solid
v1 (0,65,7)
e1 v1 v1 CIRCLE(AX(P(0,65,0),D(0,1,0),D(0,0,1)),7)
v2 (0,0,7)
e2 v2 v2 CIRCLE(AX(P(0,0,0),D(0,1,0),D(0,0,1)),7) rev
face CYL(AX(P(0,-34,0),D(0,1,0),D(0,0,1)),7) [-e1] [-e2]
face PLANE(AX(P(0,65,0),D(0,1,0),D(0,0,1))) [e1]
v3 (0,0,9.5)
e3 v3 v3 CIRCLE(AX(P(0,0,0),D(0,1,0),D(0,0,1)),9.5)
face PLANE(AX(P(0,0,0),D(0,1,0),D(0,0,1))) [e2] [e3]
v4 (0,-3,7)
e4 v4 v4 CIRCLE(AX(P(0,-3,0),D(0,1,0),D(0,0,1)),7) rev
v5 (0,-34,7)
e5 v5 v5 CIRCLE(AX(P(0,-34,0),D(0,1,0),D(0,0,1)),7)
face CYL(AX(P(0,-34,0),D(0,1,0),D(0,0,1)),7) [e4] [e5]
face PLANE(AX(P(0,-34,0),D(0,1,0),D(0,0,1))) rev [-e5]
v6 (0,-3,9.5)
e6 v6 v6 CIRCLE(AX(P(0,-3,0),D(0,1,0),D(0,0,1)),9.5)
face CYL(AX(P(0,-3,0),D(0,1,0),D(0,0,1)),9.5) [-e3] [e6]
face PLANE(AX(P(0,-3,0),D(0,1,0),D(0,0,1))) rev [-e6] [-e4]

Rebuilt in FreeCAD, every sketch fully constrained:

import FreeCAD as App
import Part
import Sketcher

doc = App.newDocument("Part")
body = doc.addObject("PartDesign::Body", "Body")

# Sketch on XZ plane
sketch1 = body.newObject("Sketcher::SketchObject", "Sketch")
sketch1.AttachmentSupport = (doc.getObject("XZ_Plane"), [""])
sketch1.MapMode = "FlatFace"
sketch1.addGeometry(Part.Circle(App.Vector(0, 0, 0), App.Vector(0, 0, 1), 7), False)
sketch1.addConstraint([
    Sketcher.Constraint("Coincident", 0, 3, -1, 1),
    Sketcher.Constraint("Diameter", 0, 14.0),
])
pad1 = body.newObject("PartDesign::Pad", "Pad")
pad1.Profile = sketch1
pad1.Type = "TwoLengths"
pad1.Length = 65
pad1.Length2 = 34
pad1.Reversed = True

# Sketch on XZ plane
sketch2 = body.newObject("Sketcher::SketchObject", "Sketch001")
sketch2.AttachmentSupport = (doc.getObject("XZ_Plane"), [""])
sketch2.MapMode = "FlatFace"
sketch2.addGeometry(Part.Circle(App.Vector(0, 0, 0), App.Vector(0, 0, 1), 9.5), False)
sketch2.addConstraint([
    Sketcher.Constraint("Coincident", 0, 3, -1, 1),
    Sketcher.Constraint("Diameter", 0, 19.0),
])
pad2 = body.newObject("PartDesign::Pad", "Pad001")
pad2.Profile = sketch2
pad2.Length = 3

doc.recompute()
